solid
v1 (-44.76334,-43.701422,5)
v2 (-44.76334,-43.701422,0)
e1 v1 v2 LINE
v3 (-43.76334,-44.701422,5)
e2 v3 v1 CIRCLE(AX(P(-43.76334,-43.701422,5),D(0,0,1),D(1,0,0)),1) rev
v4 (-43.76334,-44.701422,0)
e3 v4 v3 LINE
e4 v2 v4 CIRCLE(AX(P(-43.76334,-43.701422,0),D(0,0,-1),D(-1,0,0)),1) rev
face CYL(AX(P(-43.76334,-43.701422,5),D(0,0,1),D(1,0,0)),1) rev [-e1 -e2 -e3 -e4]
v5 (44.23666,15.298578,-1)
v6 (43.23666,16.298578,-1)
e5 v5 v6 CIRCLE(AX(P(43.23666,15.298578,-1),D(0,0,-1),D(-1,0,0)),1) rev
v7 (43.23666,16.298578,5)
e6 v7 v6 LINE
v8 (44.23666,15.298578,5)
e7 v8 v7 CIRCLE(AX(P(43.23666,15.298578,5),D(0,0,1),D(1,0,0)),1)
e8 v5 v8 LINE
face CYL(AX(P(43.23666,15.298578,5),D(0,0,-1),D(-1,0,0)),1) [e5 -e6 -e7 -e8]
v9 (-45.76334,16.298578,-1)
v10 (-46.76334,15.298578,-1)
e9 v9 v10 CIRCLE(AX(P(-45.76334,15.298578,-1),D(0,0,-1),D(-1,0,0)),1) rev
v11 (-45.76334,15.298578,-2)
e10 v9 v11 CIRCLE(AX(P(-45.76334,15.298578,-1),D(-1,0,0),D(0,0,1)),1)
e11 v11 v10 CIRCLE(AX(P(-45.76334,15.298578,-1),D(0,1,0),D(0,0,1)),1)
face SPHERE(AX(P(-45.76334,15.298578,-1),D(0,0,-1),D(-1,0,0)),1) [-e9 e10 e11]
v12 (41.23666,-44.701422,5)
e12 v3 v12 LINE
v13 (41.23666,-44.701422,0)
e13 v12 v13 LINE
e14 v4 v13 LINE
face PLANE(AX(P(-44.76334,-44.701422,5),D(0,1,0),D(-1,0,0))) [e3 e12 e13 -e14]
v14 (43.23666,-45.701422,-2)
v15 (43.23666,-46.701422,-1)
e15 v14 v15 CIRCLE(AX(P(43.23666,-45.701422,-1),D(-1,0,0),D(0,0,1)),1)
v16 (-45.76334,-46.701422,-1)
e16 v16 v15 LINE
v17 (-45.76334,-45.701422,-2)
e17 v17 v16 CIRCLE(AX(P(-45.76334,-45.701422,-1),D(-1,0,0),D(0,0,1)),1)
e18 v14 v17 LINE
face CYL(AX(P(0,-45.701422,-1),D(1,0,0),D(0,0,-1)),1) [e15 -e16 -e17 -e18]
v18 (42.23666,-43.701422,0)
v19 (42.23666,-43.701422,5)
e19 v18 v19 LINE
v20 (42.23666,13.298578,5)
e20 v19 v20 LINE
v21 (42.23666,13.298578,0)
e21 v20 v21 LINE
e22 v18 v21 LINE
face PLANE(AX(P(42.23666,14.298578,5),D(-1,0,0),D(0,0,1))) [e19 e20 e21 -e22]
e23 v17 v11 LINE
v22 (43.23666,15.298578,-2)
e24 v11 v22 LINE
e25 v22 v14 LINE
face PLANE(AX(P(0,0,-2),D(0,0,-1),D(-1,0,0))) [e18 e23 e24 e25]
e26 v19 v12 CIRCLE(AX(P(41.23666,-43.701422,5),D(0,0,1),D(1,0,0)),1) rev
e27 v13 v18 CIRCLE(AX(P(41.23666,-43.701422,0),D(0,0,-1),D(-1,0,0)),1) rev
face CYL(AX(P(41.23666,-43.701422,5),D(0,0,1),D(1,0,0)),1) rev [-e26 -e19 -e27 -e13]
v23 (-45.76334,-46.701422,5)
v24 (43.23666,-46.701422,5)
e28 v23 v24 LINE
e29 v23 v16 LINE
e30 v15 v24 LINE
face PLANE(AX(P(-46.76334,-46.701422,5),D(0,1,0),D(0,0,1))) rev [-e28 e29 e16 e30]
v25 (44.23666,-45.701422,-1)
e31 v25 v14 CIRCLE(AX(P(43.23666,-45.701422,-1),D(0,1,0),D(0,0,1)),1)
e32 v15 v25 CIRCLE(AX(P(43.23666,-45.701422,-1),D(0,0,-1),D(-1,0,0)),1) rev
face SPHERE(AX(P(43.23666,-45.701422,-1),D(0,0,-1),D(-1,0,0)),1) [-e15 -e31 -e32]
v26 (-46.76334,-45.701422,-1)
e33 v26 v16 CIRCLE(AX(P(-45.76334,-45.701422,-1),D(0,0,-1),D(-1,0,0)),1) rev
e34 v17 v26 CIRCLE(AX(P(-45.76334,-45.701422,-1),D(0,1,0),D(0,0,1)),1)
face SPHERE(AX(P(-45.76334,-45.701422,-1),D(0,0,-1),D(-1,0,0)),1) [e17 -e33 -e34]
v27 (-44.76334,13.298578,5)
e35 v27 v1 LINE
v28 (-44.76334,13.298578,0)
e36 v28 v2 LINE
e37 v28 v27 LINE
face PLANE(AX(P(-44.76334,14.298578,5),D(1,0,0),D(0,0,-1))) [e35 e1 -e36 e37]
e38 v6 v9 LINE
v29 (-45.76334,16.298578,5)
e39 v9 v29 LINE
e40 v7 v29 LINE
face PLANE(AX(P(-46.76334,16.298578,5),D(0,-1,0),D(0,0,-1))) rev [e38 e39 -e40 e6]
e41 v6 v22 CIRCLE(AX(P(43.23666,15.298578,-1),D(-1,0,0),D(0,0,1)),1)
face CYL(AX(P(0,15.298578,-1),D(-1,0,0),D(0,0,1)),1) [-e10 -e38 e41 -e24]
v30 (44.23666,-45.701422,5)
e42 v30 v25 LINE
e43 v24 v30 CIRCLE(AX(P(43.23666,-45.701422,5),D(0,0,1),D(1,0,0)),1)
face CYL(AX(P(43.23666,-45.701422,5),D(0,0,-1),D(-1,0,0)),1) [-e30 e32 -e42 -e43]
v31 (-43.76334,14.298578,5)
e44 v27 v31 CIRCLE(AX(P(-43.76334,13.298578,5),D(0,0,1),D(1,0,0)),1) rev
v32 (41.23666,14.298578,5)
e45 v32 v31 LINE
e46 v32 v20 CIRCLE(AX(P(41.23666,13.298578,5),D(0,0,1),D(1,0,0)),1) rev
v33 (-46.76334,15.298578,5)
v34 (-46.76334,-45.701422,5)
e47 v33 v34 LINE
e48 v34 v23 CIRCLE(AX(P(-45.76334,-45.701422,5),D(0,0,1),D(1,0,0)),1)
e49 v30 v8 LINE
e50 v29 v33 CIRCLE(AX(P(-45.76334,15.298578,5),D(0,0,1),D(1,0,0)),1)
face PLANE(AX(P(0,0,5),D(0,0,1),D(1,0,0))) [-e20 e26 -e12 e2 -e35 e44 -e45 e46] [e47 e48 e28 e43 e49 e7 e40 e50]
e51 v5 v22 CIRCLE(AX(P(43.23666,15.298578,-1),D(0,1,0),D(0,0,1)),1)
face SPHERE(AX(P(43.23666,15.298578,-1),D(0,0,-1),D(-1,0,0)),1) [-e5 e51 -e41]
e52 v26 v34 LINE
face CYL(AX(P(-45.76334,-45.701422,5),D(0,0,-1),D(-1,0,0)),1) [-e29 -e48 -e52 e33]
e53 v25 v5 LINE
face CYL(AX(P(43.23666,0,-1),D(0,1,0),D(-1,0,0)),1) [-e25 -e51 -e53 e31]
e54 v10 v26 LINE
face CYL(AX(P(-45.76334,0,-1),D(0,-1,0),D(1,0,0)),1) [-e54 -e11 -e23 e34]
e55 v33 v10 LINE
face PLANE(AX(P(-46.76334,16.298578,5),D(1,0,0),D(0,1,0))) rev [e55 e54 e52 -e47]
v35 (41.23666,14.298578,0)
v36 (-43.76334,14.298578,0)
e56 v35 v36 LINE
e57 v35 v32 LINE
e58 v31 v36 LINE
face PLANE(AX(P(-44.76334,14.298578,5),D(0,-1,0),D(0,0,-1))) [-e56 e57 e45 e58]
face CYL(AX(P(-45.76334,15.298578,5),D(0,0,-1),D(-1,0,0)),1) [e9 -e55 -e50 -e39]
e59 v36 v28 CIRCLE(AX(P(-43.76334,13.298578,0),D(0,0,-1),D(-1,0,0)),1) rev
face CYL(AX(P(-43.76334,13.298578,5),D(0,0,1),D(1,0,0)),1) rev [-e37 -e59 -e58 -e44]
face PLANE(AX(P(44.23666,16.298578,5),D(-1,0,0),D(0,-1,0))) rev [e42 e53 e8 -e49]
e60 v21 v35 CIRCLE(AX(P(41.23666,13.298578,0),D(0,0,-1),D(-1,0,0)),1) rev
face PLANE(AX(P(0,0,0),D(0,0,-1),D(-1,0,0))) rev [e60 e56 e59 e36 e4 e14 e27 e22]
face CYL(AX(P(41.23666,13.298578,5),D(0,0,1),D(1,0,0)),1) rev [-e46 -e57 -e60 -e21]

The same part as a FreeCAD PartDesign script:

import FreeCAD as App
import Part
import Sketcher
from FreeCAD import Vector


def edges_at(feature, points):
    """Names of the edges that pass closest to the given points."""
    edges = feature.Shape.Edges
    near = lambda p: min(range(len(edges)), key=lambda i: edges[i].distToShape(Part.Vertex(*p))[0])
    return sorted({f"Edge{near(p) + 1}" for p in points})

doc = App.newDocument("Part")
params = doc.addObject("Spreadsheet::Sheet", "Params")
for row, (alias, value) in enumerate([
    ("sketch1_width", "91 mm"),
    ("sketch1_width2", "87 mm"),
    ("sketch1_height", "63 mm"),
    ("sketch1_height2", "59 mm"),
    ("pad1_length", "5 mm"),
    ("sketch2_width", "91 mm"),
    ("sketch2_height", "63 mm"),
    ("pad2_length", "2 mm"),
    ("fillet_radius", "1 mm"),
    ("fillet2_radius", "1 mm"),
    ("fillet3_radius", "1 mm"),
    ("fillet4_radius", "1 mm"),
    ("fillet5_radius", "1 mm"),
], start=1):
    params.set(f"A{row}", alias)
    params.set(f"B{row}", "=" + value)
    params.setAlias(f"B{row}", alias)

body = doc.addObject("PartDesign::Body", "Body")

# Sketch on XY plane
sketch1 = body.newObject("Sketcher::SketchObject", "Sketch")
sketch1.AttachmentSupport = (doc.getObject("XY_Plane"), [""])
sketch1.MapMode = "FlatFace"
sketch1.addGeometry(Part.LineSegment(Vector(-46.76334, 16.298578, 0), Vector(-46.76334, -46.701422, 0)), False)
sketch1.addGeometry(Part.LineSegment(Vector(-46.76334, -46.701422, 0), Vector(44.23666, -46.701422, 0)), False)
sketch1.addGeometry(Part.LineSegment(Vector(44.23666, -46.701422, 0), Vector(44.23666, 16.298578, 0)), False)
sketch1.addGeometry(Part.LineSegment(Vector(44.23666, 16.298578, 0), Vector(-46.76334, 16.298578, 0)), False)
sketch1.addGeometry(Part.LineSegment(Vector(42.23666, -44.701422, 0), Vector(-44.76334, -44.701422, 0)), False)
sketch1.addGeometry(Part.LineSegment(Vector(-44.76334, -44.701422, 0), Vector(-44.76334, 14.298578, 0)), False)
sketch1.addGeometry(Part.LineSegment(Vector(-44.76334, 14.298578, 0), Vector(42.23666, 14.298578, 0)), False)
sketch1.addGeometry(Part.LineSegment(Vector(42.23666, 14.298578, 0), Vector(42.23666, -44.701422, 0)), False)
sketch1.addConstraint(Sketcher.Constraint("Coincident", 0, 2, 1, 1))
sketch1.addConstraint(Sketcher.Constraint("Coincident", 1, 2, 2, 1))
sketch1.addConstraint(Sketcher.Constraint("Coincident", 2, 2, 3, 1))
sketch1.addConstraint(Sketcher.Constraint("Coincident", 3, 2, 0, 1))
sketch1.addConstraint(Sketcher.Constraint("Coincident", 4, 2, 5, 1))
sketch1.addConstraint(Sketcher.Constraint("Coincident", 5, 2, 6, 1))
sketch1.addConstraint(Sketcher.Constraint("Coincident", 6, 2, 7, 1))
sketch1.addConstraint(Sketcher.Constraint("Coincident", 7, 2, 4, 1))
sketch1.addConstraint(Sketcher.Constraint("Vertical", 0))
sketch1.addConstraint(Sketcher.Constraint("Horizontal", 1))
sketch1.addConstraint(Sketcher.Constraint("Vertical", 2))
sketch1.addConstraint(Sketcher.Constraint("Horizontal", 3))
sketch1.addConstraint(Sketcher.Constraint("Horizontal", 4))
sketch1.addConstraint(Sketcher.Constraint("Vertical", 5))
sketch1.addConstraint(Sketcher.Constraint("Horizontal", 6))
sketch1.addConstraint(Sketcher.Constraint("Vertical", 7))
sketch1.addConstraint(Sketcher.Constraint("DistanceX", 1, 1, 1, 2, 91.0))
sketch1.addConstraint(Sketcher.Constraint("DistanceX", 4, 2, 4, 1, 87.0))
sketch1.addConstraint(Sketcher.Constraint("DistanceY", 0, 2, 0, 1, 63.0))
sketch1.addConstraint(Sketcher.Constraint("DistanceY", 5, 1, 5, 2, 59.0))
sketch1.addConstraint(Sketcher.Constraint("DistanceX", 0, 2, 4, 2, 2.0))
sketch1.addConstraint(Sketcher.Constraint("DistanceY", 0, 2, 4, 2, 2.0))
sketch1.addConstraint(Sketcher.Constraint("DistanceX", 0, 2, -1, 1, 46.76334))
sketch1.addConstraint(Sketcher.Constraint("DistanceY", 0, 2, -1, 1, 46.701422))
sketch1.setExpression("Constraints[16]", "Params.sketch1_width")
sketch1.setExpression("Constraints[17]", "Params.sketch1_width2")
sketch1.setExpression("Constraints[18]", "Params.sketch1_height")
sketch1.setExpression("Constraints[19]", "Params.sketch1_height2")
pad1 = body.newObject("PartDesign::Pad", "Pad")
pad1.Profile = sketch1
pad1.setExpression("Length", "Params.pad1_length")

# Sketch on XY plane
sketch2 = body.newObject("Sketcher::SketchObject", "Sketch001")
sketch2.AttachmentSupport = (doc.getObject("XY_Plane"), [""])
sketch2.MapMode = "FlatFace"
sketch2.addGeometry(Part.LineSegment(Vector(44.23666, 16.298578, 0), Vector(44.23666, -46.701422, 0)), False)
sketch2.addGeometry(Part.LineSegment(Vector(44.23666, -46.701422, 0), Vector(-46.76334, -46.701422, 0)), False)
sketch2.addGeometry(Part.LineSegment(Vector(-46.76334, -46.701422, 0), Vector(-46.76334, 16.298578, 0)), False)
sketch2.addGeometry(Part.LineSegment(Vector(-46.76334, 16.298578, 0), Vector(44.23666, 16.298578, 0)), False)
sketch2.addConstraint(Sketcher.Constraint("Coincident", 0, 2, 1, 1))
sketch2.addConstraint(Sketcher.Constraint("Coincident", 1, 2, 2, 1))
sketch2.addConstraint(Sketcher.Constraint("Coincident", 2, 2, 3, 1))
sketch2.addConstraint(Sketcher.Constraint("Coincident", 3, 2, 0, 1))
sketch2.addConstraint(Sketcher.Constraint("Vertical", 0))
sketch2.addConstraint(Sketcher.Constraint("Horizontal", 1))
sketch2.addConstraint(Sketcher.Constraint("Vertical", 2))
sketch2.addConstraint(Sketcher.Constraint("Horizontal", 3))
sketch2.addConstraint(Sketcher.Constraint("DistanceX", 1, 2, 1, 1, 91.0))
sketch2.addConstraint(Sketcher.Constraint("DistanceY", 0, 2, 0, 1, 63.0))
sketch2.addConstraint(Sketcher.Constraint("DistanceX", -1, 1, 0, 2, 44.23666))
sketch2.addConstraint(Sketcher.Constraint("DistanceY", 0, 2, -1, 1, 46.701422))
sketch2.setExpression("Constraints[8]", "Params.sketch2_width")
sketch2.setExpression("Constraints[9]", "Params.sketch2_height")
pad2 = body.newObject("PartDesign::Pad", "Pad001")
pad2.Profile = sketch2
pad2.setExpression("Length", "Params.pad2_length")
pad2.Reversed = True
doc.recompute()

fillet = body.newObject("PartDesign::Fillet", "Fillet")
fillet.Base = (pad2, edges_at(pad2, [(42.237, 14.299, 2.5)]))
fillet.setExpression("Radius", "Params.fillet_radius")
doc.recompute()

fillet2 = body.newObject("PartDesign::Fillet", "Fillet001")
fillet2.Base = (fillet, edges_at(fillet, [(-44.763, 14.299, 2.5), (-44.763, -44.701, 2.5), (42.237, -44.701, 2.5)]))
fillet2.setExpression("Radius", "Params.fillet2_radius")
doc.recompute()

fillet3 = body.newObject("PartDesign::Fillet", "Fillet002")
fillet3.Base = (fillet2, edges_at(fillet2, [(-46.763, -46.701, 1.5)]))
fillet3.setExpression("Radius", "Params.fillet3_radius")
doc.recompute()

fillet4 = body.newObject("PartDesign::Fillet", "Fillet003")
fillet4.Base = (fillet3, edges_at(fillet3, [(-46.763, 16.299, 1.5), (44.237, 16.299, 1.5), (44.237, -46.701, 1.5)]))
fillet4.setExpression("Radius", "Params.fillet4_radius")
doc.recompute()

fillet5 = body.newObject("PartDesign::Fillet", "Fillet004")
fillet5.Base = (fillet4, edges_at(fillet4, [
    (-46.763, -15.201, -2),
    (-46.47, -46.409, -2),
    (44.237, -15.201, -2),
    (-1.263, -46.701, -2),
    (-1.263, 16.299, -2),
    (-46.47, 16.006, -2),
    (43.944, 16.006, -2),
    (43.944, -46.409, -2),
]))
fillet5.setExpression("Radius", "Params.fillet5_radius")

doc.recompute()
